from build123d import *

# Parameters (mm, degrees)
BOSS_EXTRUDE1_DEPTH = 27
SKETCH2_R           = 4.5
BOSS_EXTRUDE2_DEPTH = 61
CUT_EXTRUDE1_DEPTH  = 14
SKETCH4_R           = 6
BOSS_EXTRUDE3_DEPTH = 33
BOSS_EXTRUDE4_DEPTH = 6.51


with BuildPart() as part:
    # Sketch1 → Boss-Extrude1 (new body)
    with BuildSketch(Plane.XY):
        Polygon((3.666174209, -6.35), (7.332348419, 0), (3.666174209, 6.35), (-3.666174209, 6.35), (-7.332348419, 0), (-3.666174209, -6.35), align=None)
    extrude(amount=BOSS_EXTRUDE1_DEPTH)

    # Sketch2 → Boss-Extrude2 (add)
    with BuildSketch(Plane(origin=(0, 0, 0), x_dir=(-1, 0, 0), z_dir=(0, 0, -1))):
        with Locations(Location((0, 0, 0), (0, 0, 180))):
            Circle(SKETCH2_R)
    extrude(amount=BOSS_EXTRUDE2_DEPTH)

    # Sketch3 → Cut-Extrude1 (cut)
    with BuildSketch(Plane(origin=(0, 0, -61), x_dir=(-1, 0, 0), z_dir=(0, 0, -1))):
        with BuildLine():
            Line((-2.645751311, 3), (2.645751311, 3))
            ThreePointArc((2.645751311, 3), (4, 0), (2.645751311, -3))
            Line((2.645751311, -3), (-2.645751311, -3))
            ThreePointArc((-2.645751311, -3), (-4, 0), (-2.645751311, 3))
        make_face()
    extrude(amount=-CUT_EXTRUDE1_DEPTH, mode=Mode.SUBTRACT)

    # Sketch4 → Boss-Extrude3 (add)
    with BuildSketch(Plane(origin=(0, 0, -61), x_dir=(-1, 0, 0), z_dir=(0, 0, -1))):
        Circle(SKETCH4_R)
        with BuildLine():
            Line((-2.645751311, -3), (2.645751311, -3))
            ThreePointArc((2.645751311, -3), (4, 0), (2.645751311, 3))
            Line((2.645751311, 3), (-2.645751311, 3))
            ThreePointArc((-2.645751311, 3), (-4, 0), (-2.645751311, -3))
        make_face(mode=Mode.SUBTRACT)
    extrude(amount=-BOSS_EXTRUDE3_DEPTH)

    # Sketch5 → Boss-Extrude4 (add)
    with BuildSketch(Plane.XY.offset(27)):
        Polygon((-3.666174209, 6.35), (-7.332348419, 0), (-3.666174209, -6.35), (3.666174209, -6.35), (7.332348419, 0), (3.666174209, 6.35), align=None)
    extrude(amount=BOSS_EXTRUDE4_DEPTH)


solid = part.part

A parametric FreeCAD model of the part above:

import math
import FreeCAD as App
import Part
import Sketcher

V = App.Vector
Q = App.Units.Quantity

doc = App.newDocument("Part")
body = doc.addObject("PartDesign::Body", "Body")

sketch1 = doc.addObject("Sketcher::SketchObject", "Sketch")
body.addObject(sketch1)
sketch1.AttachmentSupport = (doc.XY_Plane, [""])
sketch1.MapMode = "FlatFace"
sketch1.addGeometry([
    Part.LineSegment(V(4, -6, 0), V(7, 0, 0)),
    Part.LineSegment(V(7, 0, 0), V(4, 6, 0)),
    Part.LineSegment(V(4, 6, 0), V(-4, 6, 0)),
    Part.LineSegment(V(-4, 6, 0), V(-7, 0, 0)),
    Part.LineSegment(V(-7, 0, 0), V(-4, -6, 0)),
    Part.LineSegment(V(-4, -6, 0), V(4, -6, 0)),
], False)
sketch1.addConstraint([
    Sketcher.Constraint("Coincident", 0, 2, 1, 1),
    Sketcher.Constraint("Coincident", 1, 2, 2, 1),
    Sketcher.Constraint("Coincident", 2, 2, 3, 1),
    Sketcher.Constraint("Coincident", 3, 2, 4, 1),
    Sketcher.Constraint("Coincident", 4, 2, 5, 1),
    Sketcher.Constraint("Coincident", 5, 2, 0, 1),
    Sketcher.Constraint("Horizontal", 2),
    Sketcher.Constraint("Horizontal", 5),
    Sketcher.Constraint("Symmetric", 0, 2, 3, 2, -1, 1),
    Sketcher.Constraint("Symmetric", 1, 2, 4, 2, -1, 1),
    Sketcher.Constraint("PointOnObject", 0, 2, -1),
    Sketcher.Constraint("Parallel", 0, 3),
    Sketcher.Constraint("Vertical", 2, 2, 4, 2),
    Sketcher.Constraint("Angle", 0, Q("60 deg")),
    Sketcher.Constraint("DistanceY", 4, 2, 2, 2, Q("12.7 mm")),
    Sketcher.Constraint("DistanceX", 2, 2, 2, 1, Q("7.332348 mm")),
])
pad1 = doc.addObject("PartDesign::Pad", "Pad")
body.addObject(pad1)
pad1.Profile = sketch1
pad1.Length = 27

sketch2 = doc.addObject("Sketcher::SketchObject", "Sketch001")
body.addObject(sketch2)
sketch2.AttachmentSupport = (doc.XY_Plane, [""])
sketch2.MapMode = "FlatFace"
sketch2.addGeometry(Part.Circle(V(0, 0, 0), V(0, 0, 1), 4.5), False)
sketch2.addConstraint([
    Sketcher.Constraint("Coincident", 0, 3, -1, 1),
    Sketcher.Constraint("Diameter", 0, Q("9 mm")),
])
pad2 = doc.addObject("PartDesign::Pad", "Pad001")
body.addObject(pad2)
pad2.Profile = sketch2
pad2.Length = 61
pad2.Reversed = True

sketch3 = doc.addObject("Sketcher::SketchObject", "Sketch002")
body.addObject(sketch3)
sketch3.AttachmentSupport = (doc.XY_Plane, [""])
sketch3.MapMode = "FlatFace"
sketch3.AttachmentOffset = App.Placement(V(0, 0, -61), App.Rotation())
sketch3.addGeometry([
    Part.LineSegment(V(-2.6, 3, 0), V(2.6, 3, 0)),
    Part.ArcOfCircle(Part.Circle(V(0, 0, 0), V(0, 0, 1), 4), math.radians(-49), math.radians(49)),
    Part.LineSegment(V(2.6, -3, 0), V(-2.6, -3, 0)),
    Part.ArcOfCircle(Part.Circle(V(0, 0, 0), V(0, 0, 1), 4), math.radians(131), math.radians(229)),
], False)
sketch3.addConstraint([
    Sketcher.Constraint("Coincident", 0, 2, 1, 2),
    Sketcher.Constraint("Coincident", 1, 1, 2, 1),
    Sketcher.Constraint("Coincident", 2, 2, 3, 2),
    Sketcher.Constraint("Coincident", 3, 1, 0, 1),
    Sketcher.Constraint("Horizontal", 0),
    Sketcher.Constraint("Horizontal", 2),
    Sketcher.Constraint("Coincident", 1, 3, -1, 1),
    Sketcher.Constraint("Coincident", 3, 3, -1, 1),
    Sketcher.Constraint("Equal", 1, 3),
    Sketcher.Constraint("Vertical", 0, 2, 1, 1),
    Sketcher.Constraint("Radius", 1, Q("4 mm")),
    Sketcher.Constraint("DistanceY", -1, 1, 0, 2, Q("3 mm")),
])
pocket1 = doc.addObject("PartDesign::Pocket", "Pocket")
body.addObject(pocket1)
pocket1.Profile = sketch3
pocket1.Length = 14
pocket1.Reversed = True

sketch4 = doc.addObject("Sketcher::SketchObject", "Sketch003")
body.addObject(sketch4)
sketch4.AttachmentSupport = (doc.XY_Plane, [""])
sketch4.MapMode = "FlatFace"
sketch4.AttachmentOffset = App.Placement(V(0, 0, -61), App.Rotation())
sketch4.addGeometry([
    Part.Circle(V(0, 0, 0), V(0, 0, 1), 6),
    Part.LineSegment(V(-2.6, -3, 0), V(2.6, -3, 0)),
    Part.ArcOfCircle(Part.Circle(V(0, 0, 0), V(0, 0, 1), 4), math.radians(-49), math.radians(49)),
    Part.LineSegment(V(2.6, 3, 0), V(-2.6, 3, 0)),
    Part.ArcOfCircle(Part.Circle(V(0, 0, 0), V(0, 0, 1), 4), math.radians(131), math.radians(229)),
], False)
sketch4.addConstraint([
    Sketcher.Constraint("Coincident", 1, 2, 2, 1),
    Sketcher.Constraint("Coincident", 2, 2, 3, 1),
    Sketcher.Constraint("Coincident", 3, 2, 4, 1),
    Sketcher.Constraint("Coincident", 4, 2, 1, 1),
    Sketcher.Constraint("Horizontal", 1),
    Sketcher.Constraint("Horizontal", 3),
    Sketcher.Constraint("Coincident", 0, 3, -1, 1),
    Sketcher.Constraint("Coincident", 2, 3, -1, 1),
    Sketcher.Constraint("Coincident", 4, 3, -1, 1),
    Sketcher.Constraint("Equal", 2, 4),
    Sketcher.Constraint("Vertical", 1, 2, 2, 2),
    Sketcher.Constraint("Diameter", 0, Q("12 mm")),
    Sketcher.Constraint("Radius", 2, Q("4 mm")),
    Sketcher.Constraint("DistanceY", 1, 2, -1, 1, Q("3 mm")),
])
pad3 = doc.addObject("PartDesign::Pad", "Pad002")
body.addObject(pad3)
pad3.Profile = sketch4
pad3.Length = 33

sketch5 = doc.addObject("Sketcher::SketchObject", "Sketch004")
body.addObject(sketch5)
sketch5.AttachmentSupport = (doc.XY_Plane, [""])
sketch5.MapMode = "FlatFace"
sketch5.AttachmentOffset = App.Placement(V(0, 0, 27), App.Rotation())
sketch5.addGeometry([
    Part.LineSegment(V(-4, 6, 0), V(-7, 0, 0)),
    Part.LineSegment(V(-7, 0, 0), V(-4, -6, 0)),
    Part.LineSegment(V(-4, -6, 0), V(4, -6, 0)),
    Part.LineSegment(V(4, -6, 0), V(7, 0, 0)),
    Part.LineSegment(V(7, 0, 0), V(4, 6, 0)),
    Part.LineSegment(V(4, 6, 0), V(-4, 6, 0)),
], False)
sketch5.addConstraint([
    Sketcher.Constraint("Coincident", 0, 2, 1, 1),
    Sketcher.Constraint("Coincident", 1, 2, 2, 1),
    Sketcher.Constraint("Coincident", 2, 2, 3, 1),
    Sketcher.Constraint("Coincident", 3, 2, 4, 1),
    Sketcher.Constraint("Coincident", 4, 2, 5, 1),
    Sketcher.Constraint("Coincident", 5, 2, 0, 1),
    Sketcher.Constraint("Horizontal", 2),
    Sketcher.Constraint("Horizontal", 5),
    Sketcher.Constraint("Symmetric", 0, 2, 3, 2, -1, 1),
    Sketcher.Constraint("Symmetric", 1, 2, 4, 2, -1, 1),
    Sketcher.Constraint("PointOnObject", 0, 2, -1),
    Sketcher.Constraint("Parallel", 0, 3),
    Sketcher.Constraint("Vertical", 2, 2, 4, 2),
    Sketcher.Constraint("Angle", 0, Q("-120 deg")),
    Sketcher.Constraint("DistanceY", 2, 2, 4, 2, Q("12.7 mm")),
    Sketcher.Constraint("DistanceX", 2, 1, 2, 2, Q("7.332348 mm")),
])
pad4 = doc.addObject("PartDesign::Pad", "Pad003")
body.addObject(pad4)
pad4.Profile = sketch5
pad4.Length = 6.51

doc.recompute()
